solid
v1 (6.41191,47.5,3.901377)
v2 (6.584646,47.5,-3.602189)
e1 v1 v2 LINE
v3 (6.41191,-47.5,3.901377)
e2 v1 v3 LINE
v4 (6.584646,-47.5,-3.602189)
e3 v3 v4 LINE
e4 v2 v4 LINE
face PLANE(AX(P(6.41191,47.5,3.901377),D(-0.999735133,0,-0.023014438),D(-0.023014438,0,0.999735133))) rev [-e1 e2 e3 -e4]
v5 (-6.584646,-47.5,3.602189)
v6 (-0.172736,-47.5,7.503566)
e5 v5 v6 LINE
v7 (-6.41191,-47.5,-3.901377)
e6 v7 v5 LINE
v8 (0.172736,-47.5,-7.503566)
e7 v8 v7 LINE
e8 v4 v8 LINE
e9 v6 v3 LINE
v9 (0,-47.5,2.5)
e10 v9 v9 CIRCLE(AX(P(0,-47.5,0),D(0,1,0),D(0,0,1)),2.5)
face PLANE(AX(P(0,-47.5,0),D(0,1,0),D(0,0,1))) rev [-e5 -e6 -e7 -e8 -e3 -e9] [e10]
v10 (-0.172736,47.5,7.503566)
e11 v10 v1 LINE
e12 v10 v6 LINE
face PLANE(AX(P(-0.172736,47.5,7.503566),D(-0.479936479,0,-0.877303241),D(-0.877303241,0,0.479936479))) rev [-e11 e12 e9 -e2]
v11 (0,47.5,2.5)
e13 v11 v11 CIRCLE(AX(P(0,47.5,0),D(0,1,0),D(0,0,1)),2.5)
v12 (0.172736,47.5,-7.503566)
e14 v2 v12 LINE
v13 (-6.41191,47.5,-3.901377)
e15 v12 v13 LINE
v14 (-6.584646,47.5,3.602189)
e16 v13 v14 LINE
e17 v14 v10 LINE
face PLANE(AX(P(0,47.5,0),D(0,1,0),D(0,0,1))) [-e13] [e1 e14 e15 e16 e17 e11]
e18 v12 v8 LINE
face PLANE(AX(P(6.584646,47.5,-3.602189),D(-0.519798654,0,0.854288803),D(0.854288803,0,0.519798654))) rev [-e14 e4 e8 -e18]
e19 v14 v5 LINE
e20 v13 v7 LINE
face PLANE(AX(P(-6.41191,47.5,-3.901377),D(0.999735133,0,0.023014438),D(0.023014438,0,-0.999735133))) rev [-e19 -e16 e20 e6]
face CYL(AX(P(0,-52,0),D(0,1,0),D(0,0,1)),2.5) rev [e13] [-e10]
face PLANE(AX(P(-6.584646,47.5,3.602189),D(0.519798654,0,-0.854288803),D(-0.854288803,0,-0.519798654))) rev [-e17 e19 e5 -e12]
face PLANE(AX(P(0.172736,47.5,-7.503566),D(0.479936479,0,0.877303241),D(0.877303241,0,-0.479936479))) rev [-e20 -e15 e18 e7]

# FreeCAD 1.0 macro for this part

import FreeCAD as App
import Part
import Sketcher
from FreeCAD import Vector


def add_polygon(sketch, points):
    """Adds a closed chain of lines whose ends are joined by coincident constraints."""
    first, n = sketch.GeometryCount, len(points)
    for a, b in zip(points, points[1:] + points[:1]):
        sketch.addGeometry(Part.LineSegment(App.Vector(*a, 0), App.Vector(*b, 0)), False)
    for i in range(n):
        sketch.addConstraint(Sketcher.Constraint("Coincident", first + i, 2, first + (i + 1) % n, 1))

doc = App.newDocument("Part")
params = doc.addObject("Spreadsheet::Sheet", "Params")
for row, (alias, value) in enumerate([
    ("pad1_length", "95 mm"),
    ("sketch2_diameter", "5 mm"),
    ("pocket1_length", "104 mm"),
], start=1):
    params.set(f"A{row}", alias)
    params.set(f"B{row}", "=" + value)
    params.setAlias(f"B{row}", alias)

body = doc.addObject("PartDesign::Body", "Body")

# Sketch on XZ plane
sketch1 = doc.addObject("Sketcher::SketchObject", "Sketch")
body.addObject(sketch1)
sketch1.AttachmentSupport = (doc.XZ_Plane, [""])
sketch1.MapMode = "FlatFace"
add_polygon(sketch1, [(6.584646, -3.602189), (0.172736, -7.503566), (-6.41191, -3.901377), (-6.584646, 3.602189), (-0.172736, 7.503566), (6.41191, 3.901377)])  # lines 0-5
sketch1.addConstraint([
    Sketcher.Constraint("Symmetric", 0, 2, 3, 2, -1, 1),
    Sketcher.Constraint("Symmetric", 1, 2, 4, 2, -1, 1),
    Sketcher.Constraint("Symmetric", 2, 2, 5, 2, -1, 1),
    Sketcher.Constraint("Equal", 0, 1),
    Sketcher.Constraint("Equal", 1, 2),
    Sketcher.Constraint("DistanceX", 1, 2, -1, 1, 6.41191),
    Sketcher.Constraint("DistanceY", -1, 1, 2, 2, 3.602189),
    Sketcher.Constraint("DistanceY", 0, 2, 1, 2, 3.602189),
    Sketcher.Constraint("DistanceX", 2, 2, 3, 2, 6.41191),
])
pad1 = doc.addObject("PartDesign::Pad", "Pad")
body.addObject(pad1)
pad1.Profile = sketch1
pad1.setExpression("Length", "Params.pad1_length")
pad1.Midplane = True

# Sketch on XZ plane
sketch2 = doc.addObject("Sketcher::SketchObject", "Sketch001")
body.addObject(sketch2)
sketch2.AttachmentSupport = (doc.XZ_Plane, [""])
sketch2.MapMode = "FlatFace"
sketch2.addGeometry(Part.Circle(Vector(0, 0, 0), Vector(0, 0, 1), 2.5), False)
sketch2.addConstraint([
    Sketcher.Constraint("Coincident", 0, 3, -1, 1),
    Sketcher.Constraint("Diameter", 0, 5.0),
])
sketch2.setExpression("Constraints[1]", "Params.sketch2_diameter")
pocket1 = doc.addObject("PartDesign::Pocket", "Pocket")
body.addObject(pocket1)
pocket1.Profile = sketch2
pocket1.setExpression("Length", "Params.pocket1_length")
pocket1.Midplane = True

doc.recompute()
